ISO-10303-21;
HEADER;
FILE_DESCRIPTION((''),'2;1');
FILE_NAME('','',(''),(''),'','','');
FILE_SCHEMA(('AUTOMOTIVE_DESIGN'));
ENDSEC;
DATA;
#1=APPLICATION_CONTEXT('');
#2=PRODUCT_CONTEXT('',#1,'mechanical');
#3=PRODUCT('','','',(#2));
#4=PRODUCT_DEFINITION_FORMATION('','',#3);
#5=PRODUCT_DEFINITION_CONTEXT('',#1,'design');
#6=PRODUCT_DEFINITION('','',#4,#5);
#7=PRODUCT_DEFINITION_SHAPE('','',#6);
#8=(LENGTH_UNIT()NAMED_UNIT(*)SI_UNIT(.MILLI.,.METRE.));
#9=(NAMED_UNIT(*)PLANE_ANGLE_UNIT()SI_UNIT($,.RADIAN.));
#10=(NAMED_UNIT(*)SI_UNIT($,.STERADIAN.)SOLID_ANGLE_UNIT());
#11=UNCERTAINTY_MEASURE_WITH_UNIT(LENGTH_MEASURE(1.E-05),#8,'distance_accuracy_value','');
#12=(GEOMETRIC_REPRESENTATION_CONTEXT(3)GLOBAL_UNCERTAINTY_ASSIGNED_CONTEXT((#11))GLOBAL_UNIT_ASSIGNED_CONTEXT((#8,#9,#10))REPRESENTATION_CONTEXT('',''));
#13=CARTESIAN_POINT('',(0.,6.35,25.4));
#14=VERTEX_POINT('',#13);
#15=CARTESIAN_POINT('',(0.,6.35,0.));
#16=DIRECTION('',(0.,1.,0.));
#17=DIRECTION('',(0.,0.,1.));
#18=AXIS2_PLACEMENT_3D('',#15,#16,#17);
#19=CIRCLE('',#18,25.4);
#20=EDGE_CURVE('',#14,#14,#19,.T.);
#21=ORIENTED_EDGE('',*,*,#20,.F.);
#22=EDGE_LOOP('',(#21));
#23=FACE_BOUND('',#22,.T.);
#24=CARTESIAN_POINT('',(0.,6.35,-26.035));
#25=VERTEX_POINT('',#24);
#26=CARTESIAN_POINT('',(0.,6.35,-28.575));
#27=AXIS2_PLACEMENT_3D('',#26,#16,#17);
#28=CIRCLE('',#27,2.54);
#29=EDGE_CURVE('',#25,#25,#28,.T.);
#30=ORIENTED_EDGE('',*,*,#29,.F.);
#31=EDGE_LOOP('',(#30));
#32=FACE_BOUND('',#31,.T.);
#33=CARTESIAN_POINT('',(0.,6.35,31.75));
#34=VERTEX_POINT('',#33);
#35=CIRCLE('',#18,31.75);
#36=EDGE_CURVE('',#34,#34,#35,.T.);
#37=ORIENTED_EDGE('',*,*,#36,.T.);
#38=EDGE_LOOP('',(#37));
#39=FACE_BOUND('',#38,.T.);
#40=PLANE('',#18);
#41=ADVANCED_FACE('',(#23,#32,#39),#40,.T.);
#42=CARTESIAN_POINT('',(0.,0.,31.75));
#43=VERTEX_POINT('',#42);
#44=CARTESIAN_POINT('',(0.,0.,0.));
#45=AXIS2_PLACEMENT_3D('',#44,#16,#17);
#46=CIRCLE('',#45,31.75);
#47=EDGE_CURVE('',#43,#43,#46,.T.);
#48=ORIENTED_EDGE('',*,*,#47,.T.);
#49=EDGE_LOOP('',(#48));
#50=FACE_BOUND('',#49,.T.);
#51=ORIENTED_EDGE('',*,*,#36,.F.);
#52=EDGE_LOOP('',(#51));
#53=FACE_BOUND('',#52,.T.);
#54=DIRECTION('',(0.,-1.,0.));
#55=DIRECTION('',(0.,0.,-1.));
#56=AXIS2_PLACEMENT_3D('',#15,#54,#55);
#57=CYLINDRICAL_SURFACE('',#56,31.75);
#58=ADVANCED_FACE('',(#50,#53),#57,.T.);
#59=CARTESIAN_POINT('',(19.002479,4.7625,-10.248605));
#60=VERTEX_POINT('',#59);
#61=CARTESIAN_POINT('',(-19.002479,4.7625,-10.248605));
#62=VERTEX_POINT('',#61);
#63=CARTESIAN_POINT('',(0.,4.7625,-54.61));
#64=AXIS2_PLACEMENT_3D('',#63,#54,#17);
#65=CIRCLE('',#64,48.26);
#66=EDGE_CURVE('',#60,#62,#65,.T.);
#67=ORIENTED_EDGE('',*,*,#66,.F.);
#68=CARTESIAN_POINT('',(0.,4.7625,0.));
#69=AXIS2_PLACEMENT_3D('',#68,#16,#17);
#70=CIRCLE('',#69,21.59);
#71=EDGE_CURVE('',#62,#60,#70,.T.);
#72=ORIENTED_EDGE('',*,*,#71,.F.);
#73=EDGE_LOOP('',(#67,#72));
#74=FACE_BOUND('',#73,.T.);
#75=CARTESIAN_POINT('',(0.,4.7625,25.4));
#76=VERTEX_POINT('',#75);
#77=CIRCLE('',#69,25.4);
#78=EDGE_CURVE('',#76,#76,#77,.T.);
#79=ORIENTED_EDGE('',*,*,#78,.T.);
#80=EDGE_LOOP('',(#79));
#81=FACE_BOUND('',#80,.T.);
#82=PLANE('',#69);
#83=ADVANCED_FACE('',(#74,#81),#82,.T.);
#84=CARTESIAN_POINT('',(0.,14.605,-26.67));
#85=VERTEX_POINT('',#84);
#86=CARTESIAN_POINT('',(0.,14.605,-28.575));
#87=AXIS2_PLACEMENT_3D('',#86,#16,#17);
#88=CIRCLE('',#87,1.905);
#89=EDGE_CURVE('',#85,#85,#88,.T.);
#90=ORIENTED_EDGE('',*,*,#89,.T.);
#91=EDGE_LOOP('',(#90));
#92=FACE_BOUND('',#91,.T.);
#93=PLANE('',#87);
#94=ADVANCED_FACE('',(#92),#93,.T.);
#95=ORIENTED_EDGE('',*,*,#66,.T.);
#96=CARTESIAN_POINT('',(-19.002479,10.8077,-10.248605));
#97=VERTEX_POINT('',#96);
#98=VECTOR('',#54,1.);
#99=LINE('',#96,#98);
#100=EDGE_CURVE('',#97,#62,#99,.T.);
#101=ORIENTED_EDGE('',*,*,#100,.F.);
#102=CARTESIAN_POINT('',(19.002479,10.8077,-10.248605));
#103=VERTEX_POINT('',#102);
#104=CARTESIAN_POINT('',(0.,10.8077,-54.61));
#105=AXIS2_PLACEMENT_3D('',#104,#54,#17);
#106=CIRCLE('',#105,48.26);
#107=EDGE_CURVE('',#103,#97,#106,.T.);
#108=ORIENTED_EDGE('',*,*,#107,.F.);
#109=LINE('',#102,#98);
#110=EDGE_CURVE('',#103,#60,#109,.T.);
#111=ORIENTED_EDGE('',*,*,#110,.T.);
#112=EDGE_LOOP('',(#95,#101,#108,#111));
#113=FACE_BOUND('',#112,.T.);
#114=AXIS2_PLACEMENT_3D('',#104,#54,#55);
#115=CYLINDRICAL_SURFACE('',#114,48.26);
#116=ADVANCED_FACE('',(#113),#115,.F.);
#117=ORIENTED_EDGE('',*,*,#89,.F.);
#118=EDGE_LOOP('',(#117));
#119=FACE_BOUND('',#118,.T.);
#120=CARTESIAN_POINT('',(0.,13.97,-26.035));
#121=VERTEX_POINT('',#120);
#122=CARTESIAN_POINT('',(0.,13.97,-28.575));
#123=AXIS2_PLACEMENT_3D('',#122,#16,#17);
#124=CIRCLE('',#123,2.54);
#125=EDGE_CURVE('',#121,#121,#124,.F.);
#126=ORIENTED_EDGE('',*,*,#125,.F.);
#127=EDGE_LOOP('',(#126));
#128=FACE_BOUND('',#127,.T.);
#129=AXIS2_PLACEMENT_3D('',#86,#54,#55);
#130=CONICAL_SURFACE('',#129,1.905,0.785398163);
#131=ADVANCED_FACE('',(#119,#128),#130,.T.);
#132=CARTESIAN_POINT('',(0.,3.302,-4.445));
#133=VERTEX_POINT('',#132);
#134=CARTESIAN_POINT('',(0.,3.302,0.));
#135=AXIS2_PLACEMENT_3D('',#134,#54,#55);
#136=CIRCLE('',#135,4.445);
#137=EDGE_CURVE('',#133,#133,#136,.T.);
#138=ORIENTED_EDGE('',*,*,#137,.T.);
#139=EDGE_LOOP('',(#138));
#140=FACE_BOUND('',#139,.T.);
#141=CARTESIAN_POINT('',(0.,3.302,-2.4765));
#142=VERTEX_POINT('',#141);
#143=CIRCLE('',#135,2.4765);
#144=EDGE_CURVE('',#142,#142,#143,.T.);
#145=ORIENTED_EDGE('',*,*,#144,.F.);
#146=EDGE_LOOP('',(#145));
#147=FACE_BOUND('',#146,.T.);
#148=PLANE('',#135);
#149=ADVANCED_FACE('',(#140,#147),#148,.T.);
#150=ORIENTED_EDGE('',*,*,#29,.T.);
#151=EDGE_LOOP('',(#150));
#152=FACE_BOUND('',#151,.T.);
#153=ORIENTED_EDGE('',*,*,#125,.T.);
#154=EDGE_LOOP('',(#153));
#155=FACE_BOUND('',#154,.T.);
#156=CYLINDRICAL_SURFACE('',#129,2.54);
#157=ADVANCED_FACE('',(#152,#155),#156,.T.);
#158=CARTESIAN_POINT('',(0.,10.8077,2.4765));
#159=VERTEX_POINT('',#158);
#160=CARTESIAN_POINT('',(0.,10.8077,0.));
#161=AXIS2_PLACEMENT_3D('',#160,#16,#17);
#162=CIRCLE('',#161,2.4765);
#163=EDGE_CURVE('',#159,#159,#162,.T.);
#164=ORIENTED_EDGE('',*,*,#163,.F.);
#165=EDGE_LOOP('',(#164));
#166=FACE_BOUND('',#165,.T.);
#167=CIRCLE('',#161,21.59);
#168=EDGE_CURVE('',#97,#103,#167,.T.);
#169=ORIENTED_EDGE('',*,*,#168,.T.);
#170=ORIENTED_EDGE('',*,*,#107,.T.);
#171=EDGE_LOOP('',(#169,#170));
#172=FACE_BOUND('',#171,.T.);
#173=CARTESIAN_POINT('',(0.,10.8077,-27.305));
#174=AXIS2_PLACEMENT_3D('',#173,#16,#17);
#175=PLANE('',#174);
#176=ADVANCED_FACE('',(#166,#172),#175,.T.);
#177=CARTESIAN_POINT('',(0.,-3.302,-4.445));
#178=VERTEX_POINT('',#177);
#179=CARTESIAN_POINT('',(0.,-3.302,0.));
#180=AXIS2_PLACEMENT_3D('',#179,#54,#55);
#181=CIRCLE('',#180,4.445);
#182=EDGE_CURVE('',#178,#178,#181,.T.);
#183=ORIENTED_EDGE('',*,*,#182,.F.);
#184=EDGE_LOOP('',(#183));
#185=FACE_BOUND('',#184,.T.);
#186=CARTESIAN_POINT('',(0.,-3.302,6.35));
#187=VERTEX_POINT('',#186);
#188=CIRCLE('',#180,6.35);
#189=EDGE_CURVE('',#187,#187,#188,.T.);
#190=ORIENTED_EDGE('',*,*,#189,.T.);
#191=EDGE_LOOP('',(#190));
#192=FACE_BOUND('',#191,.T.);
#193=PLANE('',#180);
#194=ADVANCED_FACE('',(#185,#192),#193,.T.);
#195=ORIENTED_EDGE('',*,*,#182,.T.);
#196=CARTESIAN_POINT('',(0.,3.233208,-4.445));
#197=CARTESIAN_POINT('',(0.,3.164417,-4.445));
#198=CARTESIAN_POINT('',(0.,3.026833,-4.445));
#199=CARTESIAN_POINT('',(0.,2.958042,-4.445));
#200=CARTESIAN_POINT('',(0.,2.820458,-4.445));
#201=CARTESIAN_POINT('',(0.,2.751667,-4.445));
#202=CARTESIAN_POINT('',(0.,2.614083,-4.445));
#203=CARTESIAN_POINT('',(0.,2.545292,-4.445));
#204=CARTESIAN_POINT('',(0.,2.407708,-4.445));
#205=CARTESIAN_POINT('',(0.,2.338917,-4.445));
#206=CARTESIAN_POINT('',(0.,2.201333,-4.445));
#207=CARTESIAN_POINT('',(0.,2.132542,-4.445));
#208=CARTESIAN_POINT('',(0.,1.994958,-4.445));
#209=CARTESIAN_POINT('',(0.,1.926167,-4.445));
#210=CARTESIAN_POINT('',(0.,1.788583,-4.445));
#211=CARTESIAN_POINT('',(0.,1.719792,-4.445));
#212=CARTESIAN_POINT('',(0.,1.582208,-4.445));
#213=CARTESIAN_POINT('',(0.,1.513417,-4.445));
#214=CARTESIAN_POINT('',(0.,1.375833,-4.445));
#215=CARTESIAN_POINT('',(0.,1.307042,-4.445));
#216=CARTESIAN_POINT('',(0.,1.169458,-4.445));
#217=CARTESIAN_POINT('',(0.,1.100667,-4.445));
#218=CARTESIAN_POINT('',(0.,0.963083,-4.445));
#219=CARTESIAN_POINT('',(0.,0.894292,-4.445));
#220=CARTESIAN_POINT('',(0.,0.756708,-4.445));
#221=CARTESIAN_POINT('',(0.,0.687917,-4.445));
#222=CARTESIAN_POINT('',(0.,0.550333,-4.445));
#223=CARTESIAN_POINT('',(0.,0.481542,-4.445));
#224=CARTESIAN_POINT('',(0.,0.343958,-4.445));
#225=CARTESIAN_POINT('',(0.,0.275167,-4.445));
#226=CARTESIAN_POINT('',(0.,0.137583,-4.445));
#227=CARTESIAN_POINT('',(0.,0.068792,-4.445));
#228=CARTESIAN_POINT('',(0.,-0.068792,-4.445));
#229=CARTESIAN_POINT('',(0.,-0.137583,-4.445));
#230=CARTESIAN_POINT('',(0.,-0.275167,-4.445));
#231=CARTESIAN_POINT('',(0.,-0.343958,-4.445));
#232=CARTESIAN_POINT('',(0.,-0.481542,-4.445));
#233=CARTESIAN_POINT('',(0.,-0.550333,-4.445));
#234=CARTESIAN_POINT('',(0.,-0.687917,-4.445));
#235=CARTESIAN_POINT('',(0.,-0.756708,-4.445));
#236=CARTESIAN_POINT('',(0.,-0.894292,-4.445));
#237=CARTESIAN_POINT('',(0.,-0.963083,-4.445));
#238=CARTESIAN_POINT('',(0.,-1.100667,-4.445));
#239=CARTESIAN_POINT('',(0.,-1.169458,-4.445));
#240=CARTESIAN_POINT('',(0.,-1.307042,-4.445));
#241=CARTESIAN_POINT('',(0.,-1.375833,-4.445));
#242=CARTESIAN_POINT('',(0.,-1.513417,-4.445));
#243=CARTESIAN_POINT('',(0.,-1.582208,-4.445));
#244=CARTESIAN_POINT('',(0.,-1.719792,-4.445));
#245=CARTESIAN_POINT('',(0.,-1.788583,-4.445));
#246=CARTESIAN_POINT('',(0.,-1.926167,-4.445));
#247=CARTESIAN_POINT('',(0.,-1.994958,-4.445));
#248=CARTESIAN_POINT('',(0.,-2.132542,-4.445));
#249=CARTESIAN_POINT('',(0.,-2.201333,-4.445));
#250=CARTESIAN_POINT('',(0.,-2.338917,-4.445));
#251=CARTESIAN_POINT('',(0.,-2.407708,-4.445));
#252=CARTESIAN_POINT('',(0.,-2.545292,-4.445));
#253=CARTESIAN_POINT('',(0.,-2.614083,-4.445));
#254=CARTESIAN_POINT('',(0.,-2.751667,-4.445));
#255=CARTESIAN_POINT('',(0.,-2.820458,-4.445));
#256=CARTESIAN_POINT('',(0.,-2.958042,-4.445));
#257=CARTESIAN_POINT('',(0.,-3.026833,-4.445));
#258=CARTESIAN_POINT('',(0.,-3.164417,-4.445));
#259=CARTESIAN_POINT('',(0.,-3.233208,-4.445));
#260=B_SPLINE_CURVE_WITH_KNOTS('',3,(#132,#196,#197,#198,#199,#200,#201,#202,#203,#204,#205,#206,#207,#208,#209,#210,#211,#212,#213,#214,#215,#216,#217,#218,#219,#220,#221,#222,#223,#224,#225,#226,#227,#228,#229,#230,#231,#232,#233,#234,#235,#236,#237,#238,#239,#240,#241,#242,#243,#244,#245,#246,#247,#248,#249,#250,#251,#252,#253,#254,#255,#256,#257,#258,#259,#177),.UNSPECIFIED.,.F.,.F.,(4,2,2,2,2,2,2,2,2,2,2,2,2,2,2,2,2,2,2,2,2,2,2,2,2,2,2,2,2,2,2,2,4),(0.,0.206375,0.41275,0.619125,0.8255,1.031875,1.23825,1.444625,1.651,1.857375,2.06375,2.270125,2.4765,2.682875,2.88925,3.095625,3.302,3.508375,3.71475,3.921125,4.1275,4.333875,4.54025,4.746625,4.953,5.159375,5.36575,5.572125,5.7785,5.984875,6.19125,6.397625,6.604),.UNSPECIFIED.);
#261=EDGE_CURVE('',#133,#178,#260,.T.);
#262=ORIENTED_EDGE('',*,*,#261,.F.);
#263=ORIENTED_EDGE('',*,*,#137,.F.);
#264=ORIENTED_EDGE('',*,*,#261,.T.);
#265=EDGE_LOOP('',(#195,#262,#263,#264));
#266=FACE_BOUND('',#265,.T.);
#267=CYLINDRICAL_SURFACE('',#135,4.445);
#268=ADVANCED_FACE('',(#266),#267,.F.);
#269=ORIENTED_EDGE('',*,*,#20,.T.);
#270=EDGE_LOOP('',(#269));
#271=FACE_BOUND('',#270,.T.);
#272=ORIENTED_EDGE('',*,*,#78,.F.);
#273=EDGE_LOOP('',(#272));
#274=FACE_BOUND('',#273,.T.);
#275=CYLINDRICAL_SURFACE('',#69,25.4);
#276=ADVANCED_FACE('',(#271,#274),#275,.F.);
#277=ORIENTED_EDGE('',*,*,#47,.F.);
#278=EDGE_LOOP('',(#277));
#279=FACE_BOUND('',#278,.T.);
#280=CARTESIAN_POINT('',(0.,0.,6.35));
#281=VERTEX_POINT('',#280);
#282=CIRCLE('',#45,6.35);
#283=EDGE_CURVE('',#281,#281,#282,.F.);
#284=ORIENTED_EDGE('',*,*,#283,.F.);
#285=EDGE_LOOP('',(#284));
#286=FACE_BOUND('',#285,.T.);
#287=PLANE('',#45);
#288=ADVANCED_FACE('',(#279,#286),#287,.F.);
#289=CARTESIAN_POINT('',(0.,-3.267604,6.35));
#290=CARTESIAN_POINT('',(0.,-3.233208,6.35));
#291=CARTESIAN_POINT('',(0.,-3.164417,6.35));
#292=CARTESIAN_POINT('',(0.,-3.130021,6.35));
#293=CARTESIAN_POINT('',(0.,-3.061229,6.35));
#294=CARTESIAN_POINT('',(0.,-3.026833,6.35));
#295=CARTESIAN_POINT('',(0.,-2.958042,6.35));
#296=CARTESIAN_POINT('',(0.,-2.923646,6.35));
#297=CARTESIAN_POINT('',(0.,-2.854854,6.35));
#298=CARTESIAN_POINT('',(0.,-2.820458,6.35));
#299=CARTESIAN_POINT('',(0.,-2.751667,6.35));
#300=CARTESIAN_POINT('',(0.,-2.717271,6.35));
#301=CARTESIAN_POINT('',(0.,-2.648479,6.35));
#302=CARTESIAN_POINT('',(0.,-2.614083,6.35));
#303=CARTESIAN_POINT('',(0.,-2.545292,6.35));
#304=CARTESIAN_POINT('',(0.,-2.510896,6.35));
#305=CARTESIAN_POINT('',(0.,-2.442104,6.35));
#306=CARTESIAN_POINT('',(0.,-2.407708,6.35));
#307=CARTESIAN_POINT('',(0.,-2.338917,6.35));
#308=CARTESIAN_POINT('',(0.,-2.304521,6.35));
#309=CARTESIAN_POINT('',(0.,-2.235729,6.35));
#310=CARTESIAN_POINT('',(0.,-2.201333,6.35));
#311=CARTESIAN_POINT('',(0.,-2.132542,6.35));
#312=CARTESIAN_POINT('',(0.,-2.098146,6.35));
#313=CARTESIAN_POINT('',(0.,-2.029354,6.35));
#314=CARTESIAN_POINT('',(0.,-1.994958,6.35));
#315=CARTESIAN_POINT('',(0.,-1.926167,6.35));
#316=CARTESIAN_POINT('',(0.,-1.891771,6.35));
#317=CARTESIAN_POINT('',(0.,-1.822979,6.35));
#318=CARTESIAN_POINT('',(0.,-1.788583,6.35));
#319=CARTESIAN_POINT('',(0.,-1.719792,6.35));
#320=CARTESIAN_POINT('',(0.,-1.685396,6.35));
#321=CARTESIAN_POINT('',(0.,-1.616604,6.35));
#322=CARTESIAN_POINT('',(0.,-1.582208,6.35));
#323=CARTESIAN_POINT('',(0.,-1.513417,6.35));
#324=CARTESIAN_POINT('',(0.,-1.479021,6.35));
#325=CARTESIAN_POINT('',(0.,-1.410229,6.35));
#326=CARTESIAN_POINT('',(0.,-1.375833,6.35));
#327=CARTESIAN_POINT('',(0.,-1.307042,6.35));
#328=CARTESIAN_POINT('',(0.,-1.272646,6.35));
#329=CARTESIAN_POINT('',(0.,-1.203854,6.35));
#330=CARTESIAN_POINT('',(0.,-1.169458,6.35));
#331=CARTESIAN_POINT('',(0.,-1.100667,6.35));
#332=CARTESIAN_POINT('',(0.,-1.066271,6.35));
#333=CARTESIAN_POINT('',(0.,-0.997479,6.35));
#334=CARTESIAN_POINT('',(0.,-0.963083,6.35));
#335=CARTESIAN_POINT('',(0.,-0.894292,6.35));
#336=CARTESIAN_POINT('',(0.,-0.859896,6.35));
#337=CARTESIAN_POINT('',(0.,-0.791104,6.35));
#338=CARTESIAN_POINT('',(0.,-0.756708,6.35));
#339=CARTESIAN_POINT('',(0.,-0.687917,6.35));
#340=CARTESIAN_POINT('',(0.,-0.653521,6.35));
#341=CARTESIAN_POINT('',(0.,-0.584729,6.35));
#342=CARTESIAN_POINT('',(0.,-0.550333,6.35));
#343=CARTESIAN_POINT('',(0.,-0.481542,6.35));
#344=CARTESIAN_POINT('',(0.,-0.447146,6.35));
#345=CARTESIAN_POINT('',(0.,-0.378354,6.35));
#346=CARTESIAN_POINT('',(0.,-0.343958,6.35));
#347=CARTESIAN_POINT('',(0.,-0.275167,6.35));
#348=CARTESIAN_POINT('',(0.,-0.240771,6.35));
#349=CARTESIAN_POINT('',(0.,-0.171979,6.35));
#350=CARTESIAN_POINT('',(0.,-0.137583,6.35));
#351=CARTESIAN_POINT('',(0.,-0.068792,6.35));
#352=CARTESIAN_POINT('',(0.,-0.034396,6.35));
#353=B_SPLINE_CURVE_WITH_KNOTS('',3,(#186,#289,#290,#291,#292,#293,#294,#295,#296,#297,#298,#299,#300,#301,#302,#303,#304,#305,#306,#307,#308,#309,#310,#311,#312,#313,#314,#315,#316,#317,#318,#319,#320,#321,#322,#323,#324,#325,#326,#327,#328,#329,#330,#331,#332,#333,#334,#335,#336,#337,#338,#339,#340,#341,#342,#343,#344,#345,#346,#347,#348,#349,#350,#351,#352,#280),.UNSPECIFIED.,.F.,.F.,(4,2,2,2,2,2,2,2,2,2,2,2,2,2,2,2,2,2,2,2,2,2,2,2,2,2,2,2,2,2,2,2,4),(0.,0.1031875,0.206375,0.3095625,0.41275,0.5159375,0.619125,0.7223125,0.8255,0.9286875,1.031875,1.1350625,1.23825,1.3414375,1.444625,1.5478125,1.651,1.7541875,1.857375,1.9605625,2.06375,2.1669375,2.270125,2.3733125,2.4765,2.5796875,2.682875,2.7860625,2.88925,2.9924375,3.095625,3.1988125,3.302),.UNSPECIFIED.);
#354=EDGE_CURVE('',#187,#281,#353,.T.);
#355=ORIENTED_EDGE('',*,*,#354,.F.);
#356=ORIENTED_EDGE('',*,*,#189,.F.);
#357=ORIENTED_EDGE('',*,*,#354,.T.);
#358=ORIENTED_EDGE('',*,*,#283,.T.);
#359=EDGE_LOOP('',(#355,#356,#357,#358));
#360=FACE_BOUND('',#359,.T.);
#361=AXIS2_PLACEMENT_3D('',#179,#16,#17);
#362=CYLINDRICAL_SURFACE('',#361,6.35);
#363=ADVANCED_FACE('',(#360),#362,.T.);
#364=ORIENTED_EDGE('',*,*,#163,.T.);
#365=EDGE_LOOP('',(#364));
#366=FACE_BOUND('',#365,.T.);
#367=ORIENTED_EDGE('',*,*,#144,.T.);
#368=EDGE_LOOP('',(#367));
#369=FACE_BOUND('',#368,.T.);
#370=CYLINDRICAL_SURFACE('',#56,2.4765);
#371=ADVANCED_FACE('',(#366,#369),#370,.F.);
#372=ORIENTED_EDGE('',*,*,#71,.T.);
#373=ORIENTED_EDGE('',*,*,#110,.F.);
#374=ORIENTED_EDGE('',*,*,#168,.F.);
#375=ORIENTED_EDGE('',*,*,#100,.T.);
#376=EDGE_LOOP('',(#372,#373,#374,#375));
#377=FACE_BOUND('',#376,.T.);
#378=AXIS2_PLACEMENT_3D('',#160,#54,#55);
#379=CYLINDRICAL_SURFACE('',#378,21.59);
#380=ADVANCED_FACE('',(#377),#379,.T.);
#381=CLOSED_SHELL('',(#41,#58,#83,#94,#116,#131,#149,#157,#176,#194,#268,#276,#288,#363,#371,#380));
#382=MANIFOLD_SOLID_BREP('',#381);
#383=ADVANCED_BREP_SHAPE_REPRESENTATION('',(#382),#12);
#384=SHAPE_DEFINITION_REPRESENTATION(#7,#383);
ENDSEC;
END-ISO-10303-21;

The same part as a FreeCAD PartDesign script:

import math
import FreeCAD as App
import Part
import Sketcher
from FreeCAD import Vector
Q = App.Units.Quantity


def edges_at(feature, points):
    """Names of the edges that pass closest to the given points."""
    edges = feature.Shape.Edges
    near = lambda p: min(range(len(edges)), key=lambda i: edges[i].distToShape(Part.Vertex(*p))[0])
    return sorted({f"Edge{near(p) + 1}" for p in points})

doc = App.newDocument("Part")
body = doc.addObject("PartDesign::Body", "Body")

# Sketch on XZ plane
sketch1 = body.newObject("Sketcher::SketchObject", "Sketch")
sketch1.AttachmentSupport = (doc.getObject("XZ_Plane"), [""])
sketch1.MapMode = "FlatFace"
sketch1.addGeometry(Part.Circle(Vector(0, 0, 0), Vector(0, 0, 1), 31.8), False)
sketch1.addGeometry(Part.Circle(Vector(0, 0, 0), Vector(0, 0, 1), 2.5), False)
sketch1.addConstraint(Sketcher.Constraint("Coincident", 0, 3, -1, 1))
sketch1.addConstraint(Sketcher.Constraint("Coincident", 1, 3, -1, 1))
sketch1.addConstraint(Sketcher.Constraint("Diameter", 0, Q("2.5 in")))
sketch1.addConstraint(Sketcher.Constraint("Diameter", 1, Q("0.195 in")))
pad1 = body.newObject("PartDesign::Pad", "Pad")
pad1.Profile = sketch1
pad1.Length = Q("0.25 in")
pad1.Reversed = True

# Sketch on XZ plane
sketch2 = body.newObject("Sketcher::SketchObject", "Sketch001")
sketch2.AttachmentSupport = (doc.getObject("XZ_Plane"), [""])
sketch2.MapMode = "FlatFace"
sketch2.AttachmentOffset = App.Placement(Vector(0, 0, -0.25 * 25.4), App.Rotation())
sketch2.addGeometry(Part.Circle(Vector(0, 0, 0), Vector(0, 0, 1), 25), False)
sketch2.addConstraint(Sketcher.Constraint("Coincident", 0, 3, -1, 1))
sketch2.addConstraint(Sketcher.Constraint("Diameter", 0, Q("2 in")))
pocket1 = body.newObject("PartDesign::Pocket", "Pocket")
pocket1.Profile = sketch2
pocket1.Length = Q("0.0625 in")
pocket1.Reversed = True

# Sketch on XZ plane
sketch3 = body.newObject("Sketcher::SketchObject", "Sketch002")
sketch3.AttachmentSupport = (doc.getObject("XZ_Plane"), [""])
sketch3.MapMode = "FlatFace"
sketch3.AttachmentOffset = App.Placement(Vector(0, 0, -0.1875 * 25.4), App.Rotation())
sketch3.addGeometry(Part.ArcOfCircle(Part.Circle(Vector(0, 0, 0), Vector(0, 0, 1), 21.6), math.radians(-28), math.radians(208)), False)
sketch3.addGeometry(Part.ArcOfCircle(Part.Circle(Vector(0, -54.6, 0), Vector(0, 0, 1), 48.3), math.radians(67), math.radians(113)), False)
sketch3.addGeometry(Part.Circle(Vector(0, 0, 0), Vector(0, 0, 1), 2.5), False)
sketch3.addConstraint(Sketcher.Constraint("Coincident", 0, 1, 1, 1))
sketch3.addConstraint(Sketcher.Constraint("Coincident", 1, 2, 0, 2))
sketch3.addConstraint(Sketcher.Constraint("Coincident", 0, 3, -1, 1))
sketch3.addConstraint(Sketcher.Constraint("Coincident", 2, 3, -1, 1))
sketch3.addConstraint(Sketcher.Constraint("PointOnObject", 1, 3, -2))
sketch3.addConstraint(Sketcher.Constraint("Radius", 1, Q("1.9 in")))
sketch3.addConstraint(Sketcher.Constraint("Radius", 0, Q("0.85 in")))
sketch3.addConstraint(Sketcher.Constraint("Diameter", 2, Q("0.195 in")))
sketch3.addConstraint(Sketcher.Constraint("DistanceY", 1, 3, -1, 1, Q("2.15 in")))
pad2 = body.newObject("PartDesign::Pad", "Pad001")
pad2.Profile = sketch3
pad2.Length = Q("0.238 in")
pad2.Reversed = True

# Sketch on XZ plane
sketch4 = body.newObject("Sketcher::SketchObject", "Sketch003")
sketch4.AttachmentSupport = (doc.getObject("XZ_Plane"), [""])
sketch4.MapMode = "FlatFace"
sketch4.AttachmentOffset = App.Placement(Vector(0, 0, -0.25 * 25.4), App.Rotation())
sketch4.addGeometry(Part.Circle(Vector(0, -28.6, 0), Vector(0, 0, 1), 2.5), False)
sketch4.addConstraint(Sketcher.Constraint("PointOnObject", 0, 3, -2))
sketch4.addConstraint(Sketcher.Constraint("Diameter", 0, Q("0.2 in")))
sketch4.addConstraint(Sketcher.Constraint("DistanceY", 0, 3, -1, 1, Q("1.125 in")))
pad3 = body.newObject("PartDesign::Pad", "Pad002")
pad3.Profile = sketch4
pad3.Length = Q("0.325 in")
pad3.Reversed = True
doc.recompute()

chamfer = body.newObject("PartDesign::Chamfer", "Chamfer")
chamfer.Base = (pad3, edges_at(pad3, [(0, 14.605, -31.115)]))
chamfer.Size = Q("0.025 in")

# Sketch on XZ plane
sketch5 = body.newObject("Sketcher::SketchObject", "Sketch004")
sketch5.AttachmentSupport = (doc.getObject("XZ_Plane"), [""])
sketch5.MapMode = "FlatFace"
sketch5.addGeometry(Part.Circle(Vector(0, 0, 0), Vector(0, 0, 1), 6), False)
sketch5.addConstraint(Sketcher.Constraint("Coincident", 0, 3, -1, 1))
sketch5.addConstraint(Sketcher.Constraint("Diameter", 0, Q("0.5 in")))
pad4 = body.newObject("PartDesign::Pad", "Pad003")
pad4.Profile = sketch5
pad4.Length = Q("0.13 in")

# Sketch on XZ plane
sketch6 = body.newObject("Sketcher::SketchObject", "Sketch005")
sketch6.AttachmentSupport = (doc.getObject("XZ_Plane"), [""])
sketch6.MapMode = "FlatFace"
sketch6.AttachmentOffset = App.Placement(Vector(0, 0, 0.13 * 25.4), App.Rotation())
sketch6.addGeometry(Part.Circle(Vector(0, 0, 0), Vector(0, 0, 1), 4.4), False)
sketch6.addConstraint(Sketcher.Constraint("Coincident", 0, 3, -1, 1))
sketch6.addConstraint(Sketcher.Constraint("Diameter", 0, Q("0.35 in")))
pocket2 = body.newObject("PartDesign::Pocket", "Pocket001")
pocket2.Profile = sketch6
pocket2.Length = Q("0.26 in")

doc.recompute()
